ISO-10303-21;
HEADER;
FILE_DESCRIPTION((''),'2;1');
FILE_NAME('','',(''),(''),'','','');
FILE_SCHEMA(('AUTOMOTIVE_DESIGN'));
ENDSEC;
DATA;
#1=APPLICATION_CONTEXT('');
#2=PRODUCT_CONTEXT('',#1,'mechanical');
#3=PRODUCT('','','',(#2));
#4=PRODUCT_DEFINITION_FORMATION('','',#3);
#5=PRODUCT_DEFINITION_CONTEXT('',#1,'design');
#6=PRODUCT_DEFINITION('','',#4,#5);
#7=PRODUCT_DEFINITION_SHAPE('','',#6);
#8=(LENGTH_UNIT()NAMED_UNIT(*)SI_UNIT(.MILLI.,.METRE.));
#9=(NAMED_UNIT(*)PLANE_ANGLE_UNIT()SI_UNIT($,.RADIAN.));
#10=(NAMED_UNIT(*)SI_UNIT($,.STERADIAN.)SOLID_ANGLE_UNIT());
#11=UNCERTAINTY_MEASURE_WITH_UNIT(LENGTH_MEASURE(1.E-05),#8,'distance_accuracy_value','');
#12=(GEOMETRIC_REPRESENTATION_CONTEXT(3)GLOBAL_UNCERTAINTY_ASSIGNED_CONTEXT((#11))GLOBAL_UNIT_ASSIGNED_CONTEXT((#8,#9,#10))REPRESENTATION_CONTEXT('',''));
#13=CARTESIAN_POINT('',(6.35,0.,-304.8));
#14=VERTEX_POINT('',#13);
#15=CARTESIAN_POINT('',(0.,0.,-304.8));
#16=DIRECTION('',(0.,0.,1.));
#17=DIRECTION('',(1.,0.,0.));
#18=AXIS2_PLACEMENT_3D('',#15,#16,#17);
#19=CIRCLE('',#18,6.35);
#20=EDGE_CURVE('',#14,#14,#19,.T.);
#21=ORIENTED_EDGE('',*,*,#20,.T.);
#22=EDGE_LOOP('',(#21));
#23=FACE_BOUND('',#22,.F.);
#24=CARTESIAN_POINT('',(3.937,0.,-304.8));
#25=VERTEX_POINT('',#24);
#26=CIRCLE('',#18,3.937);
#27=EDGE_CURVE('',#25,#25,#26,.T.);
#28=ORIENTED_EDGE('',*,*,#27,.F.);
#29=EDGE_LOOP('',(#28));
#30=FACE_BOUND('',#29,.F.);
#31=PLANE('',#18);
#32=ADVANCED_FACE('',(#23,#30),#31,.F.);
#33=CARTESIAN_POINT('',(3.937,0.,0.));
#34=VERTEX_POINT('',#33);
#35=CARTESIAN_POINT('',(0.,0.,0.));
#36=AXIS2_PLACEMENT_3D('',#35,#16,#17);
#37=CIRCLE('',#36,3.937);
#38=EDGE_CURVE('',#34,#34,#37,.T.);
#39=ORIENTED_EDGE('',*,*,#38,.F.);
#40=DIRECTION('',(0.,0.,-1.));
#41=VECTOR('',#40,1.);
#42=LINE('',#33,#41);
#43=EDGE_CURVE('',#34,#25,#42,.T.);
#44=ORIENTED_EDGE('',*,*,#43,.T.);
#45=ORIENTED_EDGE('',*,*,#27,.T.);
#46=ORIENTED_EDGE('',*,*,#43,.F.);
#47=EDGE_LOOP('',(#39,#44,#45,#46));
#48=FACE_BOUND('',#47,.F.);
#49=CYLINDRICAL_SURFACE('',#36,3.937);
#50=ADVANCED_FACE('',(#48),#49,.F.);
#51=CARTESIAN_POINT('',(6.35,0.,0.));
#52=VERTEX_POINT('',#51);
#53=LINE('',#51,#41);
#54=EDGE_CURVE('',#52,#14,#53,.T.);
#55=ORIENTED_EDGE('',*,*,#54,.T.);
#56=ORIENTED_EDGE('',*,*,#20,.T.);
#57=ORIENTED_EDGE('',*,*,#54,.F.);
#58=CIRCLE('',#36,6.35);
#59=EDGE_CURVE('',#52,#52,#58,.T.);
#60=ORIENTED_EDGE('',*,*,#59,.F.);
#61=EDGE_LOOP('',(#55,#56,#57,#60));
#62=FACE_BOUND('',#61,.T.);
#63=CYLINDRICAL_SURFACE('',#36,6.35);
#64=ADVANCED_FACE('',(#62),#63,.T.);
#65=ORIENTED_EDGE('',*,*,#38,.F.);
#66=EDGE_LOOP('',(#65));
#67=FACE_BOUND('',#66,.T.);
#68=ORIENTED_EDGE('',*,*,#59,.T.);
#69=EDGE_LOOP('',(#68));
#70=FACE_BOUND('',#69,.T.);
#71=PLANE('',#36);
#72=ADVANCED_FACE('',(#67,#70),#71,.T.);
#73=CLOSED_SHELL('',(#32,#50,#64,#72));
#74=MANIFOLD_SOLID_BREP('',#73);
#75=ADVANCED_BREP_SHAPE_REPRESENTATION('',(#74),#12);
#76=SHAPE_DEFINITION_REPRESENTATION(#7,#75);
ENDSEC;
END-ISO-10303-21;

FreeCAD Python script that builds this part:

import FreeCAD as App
import Part
import Sketcher

V = App.Vector
Q = App.Units.Quantity

doc = App.newDocument("Part")
body = doc.addObject("PartDesign::Body", "Body")

# Sketch on XY plane
sketch1 = body.newObject("Sketcher::SketchObject", "Sketch")
sketch1.AttachmentSupport = (doc.getObject("XY_Plane"), [""])
sketch1.MapMode = "FlatFace"
sketch1.addGeometry(Part.Circle(V(0, 0, 0), V(0, 0, 1), 6.35), False)
sketch1.addGeometry(Part.Circle(V(0, 0, 0), V(0, 0, 1), 3.937), False)
sketch1.addConstraint(Sketcher.Constraint("Coincident", 0, 3, -1, 1))
sketch1.addConstraint(Sketcher.Constraint("Coincident", 1, 3, -1, 1))
sketch1.addConstraint(Sketcher.Constraint("Diameter", 0, Q("0.5 in")))
sketch1.addConstraint(Sketcher.Constraint("Diameter", 1, Q("0.31 in")))
pad1 = body.newObject("PartDesign::Pad", "Pad")
pad1.Profile = sketch1
pad1.Length = Q("12 in")
pad1.Reversed = True

doc.recompute()
